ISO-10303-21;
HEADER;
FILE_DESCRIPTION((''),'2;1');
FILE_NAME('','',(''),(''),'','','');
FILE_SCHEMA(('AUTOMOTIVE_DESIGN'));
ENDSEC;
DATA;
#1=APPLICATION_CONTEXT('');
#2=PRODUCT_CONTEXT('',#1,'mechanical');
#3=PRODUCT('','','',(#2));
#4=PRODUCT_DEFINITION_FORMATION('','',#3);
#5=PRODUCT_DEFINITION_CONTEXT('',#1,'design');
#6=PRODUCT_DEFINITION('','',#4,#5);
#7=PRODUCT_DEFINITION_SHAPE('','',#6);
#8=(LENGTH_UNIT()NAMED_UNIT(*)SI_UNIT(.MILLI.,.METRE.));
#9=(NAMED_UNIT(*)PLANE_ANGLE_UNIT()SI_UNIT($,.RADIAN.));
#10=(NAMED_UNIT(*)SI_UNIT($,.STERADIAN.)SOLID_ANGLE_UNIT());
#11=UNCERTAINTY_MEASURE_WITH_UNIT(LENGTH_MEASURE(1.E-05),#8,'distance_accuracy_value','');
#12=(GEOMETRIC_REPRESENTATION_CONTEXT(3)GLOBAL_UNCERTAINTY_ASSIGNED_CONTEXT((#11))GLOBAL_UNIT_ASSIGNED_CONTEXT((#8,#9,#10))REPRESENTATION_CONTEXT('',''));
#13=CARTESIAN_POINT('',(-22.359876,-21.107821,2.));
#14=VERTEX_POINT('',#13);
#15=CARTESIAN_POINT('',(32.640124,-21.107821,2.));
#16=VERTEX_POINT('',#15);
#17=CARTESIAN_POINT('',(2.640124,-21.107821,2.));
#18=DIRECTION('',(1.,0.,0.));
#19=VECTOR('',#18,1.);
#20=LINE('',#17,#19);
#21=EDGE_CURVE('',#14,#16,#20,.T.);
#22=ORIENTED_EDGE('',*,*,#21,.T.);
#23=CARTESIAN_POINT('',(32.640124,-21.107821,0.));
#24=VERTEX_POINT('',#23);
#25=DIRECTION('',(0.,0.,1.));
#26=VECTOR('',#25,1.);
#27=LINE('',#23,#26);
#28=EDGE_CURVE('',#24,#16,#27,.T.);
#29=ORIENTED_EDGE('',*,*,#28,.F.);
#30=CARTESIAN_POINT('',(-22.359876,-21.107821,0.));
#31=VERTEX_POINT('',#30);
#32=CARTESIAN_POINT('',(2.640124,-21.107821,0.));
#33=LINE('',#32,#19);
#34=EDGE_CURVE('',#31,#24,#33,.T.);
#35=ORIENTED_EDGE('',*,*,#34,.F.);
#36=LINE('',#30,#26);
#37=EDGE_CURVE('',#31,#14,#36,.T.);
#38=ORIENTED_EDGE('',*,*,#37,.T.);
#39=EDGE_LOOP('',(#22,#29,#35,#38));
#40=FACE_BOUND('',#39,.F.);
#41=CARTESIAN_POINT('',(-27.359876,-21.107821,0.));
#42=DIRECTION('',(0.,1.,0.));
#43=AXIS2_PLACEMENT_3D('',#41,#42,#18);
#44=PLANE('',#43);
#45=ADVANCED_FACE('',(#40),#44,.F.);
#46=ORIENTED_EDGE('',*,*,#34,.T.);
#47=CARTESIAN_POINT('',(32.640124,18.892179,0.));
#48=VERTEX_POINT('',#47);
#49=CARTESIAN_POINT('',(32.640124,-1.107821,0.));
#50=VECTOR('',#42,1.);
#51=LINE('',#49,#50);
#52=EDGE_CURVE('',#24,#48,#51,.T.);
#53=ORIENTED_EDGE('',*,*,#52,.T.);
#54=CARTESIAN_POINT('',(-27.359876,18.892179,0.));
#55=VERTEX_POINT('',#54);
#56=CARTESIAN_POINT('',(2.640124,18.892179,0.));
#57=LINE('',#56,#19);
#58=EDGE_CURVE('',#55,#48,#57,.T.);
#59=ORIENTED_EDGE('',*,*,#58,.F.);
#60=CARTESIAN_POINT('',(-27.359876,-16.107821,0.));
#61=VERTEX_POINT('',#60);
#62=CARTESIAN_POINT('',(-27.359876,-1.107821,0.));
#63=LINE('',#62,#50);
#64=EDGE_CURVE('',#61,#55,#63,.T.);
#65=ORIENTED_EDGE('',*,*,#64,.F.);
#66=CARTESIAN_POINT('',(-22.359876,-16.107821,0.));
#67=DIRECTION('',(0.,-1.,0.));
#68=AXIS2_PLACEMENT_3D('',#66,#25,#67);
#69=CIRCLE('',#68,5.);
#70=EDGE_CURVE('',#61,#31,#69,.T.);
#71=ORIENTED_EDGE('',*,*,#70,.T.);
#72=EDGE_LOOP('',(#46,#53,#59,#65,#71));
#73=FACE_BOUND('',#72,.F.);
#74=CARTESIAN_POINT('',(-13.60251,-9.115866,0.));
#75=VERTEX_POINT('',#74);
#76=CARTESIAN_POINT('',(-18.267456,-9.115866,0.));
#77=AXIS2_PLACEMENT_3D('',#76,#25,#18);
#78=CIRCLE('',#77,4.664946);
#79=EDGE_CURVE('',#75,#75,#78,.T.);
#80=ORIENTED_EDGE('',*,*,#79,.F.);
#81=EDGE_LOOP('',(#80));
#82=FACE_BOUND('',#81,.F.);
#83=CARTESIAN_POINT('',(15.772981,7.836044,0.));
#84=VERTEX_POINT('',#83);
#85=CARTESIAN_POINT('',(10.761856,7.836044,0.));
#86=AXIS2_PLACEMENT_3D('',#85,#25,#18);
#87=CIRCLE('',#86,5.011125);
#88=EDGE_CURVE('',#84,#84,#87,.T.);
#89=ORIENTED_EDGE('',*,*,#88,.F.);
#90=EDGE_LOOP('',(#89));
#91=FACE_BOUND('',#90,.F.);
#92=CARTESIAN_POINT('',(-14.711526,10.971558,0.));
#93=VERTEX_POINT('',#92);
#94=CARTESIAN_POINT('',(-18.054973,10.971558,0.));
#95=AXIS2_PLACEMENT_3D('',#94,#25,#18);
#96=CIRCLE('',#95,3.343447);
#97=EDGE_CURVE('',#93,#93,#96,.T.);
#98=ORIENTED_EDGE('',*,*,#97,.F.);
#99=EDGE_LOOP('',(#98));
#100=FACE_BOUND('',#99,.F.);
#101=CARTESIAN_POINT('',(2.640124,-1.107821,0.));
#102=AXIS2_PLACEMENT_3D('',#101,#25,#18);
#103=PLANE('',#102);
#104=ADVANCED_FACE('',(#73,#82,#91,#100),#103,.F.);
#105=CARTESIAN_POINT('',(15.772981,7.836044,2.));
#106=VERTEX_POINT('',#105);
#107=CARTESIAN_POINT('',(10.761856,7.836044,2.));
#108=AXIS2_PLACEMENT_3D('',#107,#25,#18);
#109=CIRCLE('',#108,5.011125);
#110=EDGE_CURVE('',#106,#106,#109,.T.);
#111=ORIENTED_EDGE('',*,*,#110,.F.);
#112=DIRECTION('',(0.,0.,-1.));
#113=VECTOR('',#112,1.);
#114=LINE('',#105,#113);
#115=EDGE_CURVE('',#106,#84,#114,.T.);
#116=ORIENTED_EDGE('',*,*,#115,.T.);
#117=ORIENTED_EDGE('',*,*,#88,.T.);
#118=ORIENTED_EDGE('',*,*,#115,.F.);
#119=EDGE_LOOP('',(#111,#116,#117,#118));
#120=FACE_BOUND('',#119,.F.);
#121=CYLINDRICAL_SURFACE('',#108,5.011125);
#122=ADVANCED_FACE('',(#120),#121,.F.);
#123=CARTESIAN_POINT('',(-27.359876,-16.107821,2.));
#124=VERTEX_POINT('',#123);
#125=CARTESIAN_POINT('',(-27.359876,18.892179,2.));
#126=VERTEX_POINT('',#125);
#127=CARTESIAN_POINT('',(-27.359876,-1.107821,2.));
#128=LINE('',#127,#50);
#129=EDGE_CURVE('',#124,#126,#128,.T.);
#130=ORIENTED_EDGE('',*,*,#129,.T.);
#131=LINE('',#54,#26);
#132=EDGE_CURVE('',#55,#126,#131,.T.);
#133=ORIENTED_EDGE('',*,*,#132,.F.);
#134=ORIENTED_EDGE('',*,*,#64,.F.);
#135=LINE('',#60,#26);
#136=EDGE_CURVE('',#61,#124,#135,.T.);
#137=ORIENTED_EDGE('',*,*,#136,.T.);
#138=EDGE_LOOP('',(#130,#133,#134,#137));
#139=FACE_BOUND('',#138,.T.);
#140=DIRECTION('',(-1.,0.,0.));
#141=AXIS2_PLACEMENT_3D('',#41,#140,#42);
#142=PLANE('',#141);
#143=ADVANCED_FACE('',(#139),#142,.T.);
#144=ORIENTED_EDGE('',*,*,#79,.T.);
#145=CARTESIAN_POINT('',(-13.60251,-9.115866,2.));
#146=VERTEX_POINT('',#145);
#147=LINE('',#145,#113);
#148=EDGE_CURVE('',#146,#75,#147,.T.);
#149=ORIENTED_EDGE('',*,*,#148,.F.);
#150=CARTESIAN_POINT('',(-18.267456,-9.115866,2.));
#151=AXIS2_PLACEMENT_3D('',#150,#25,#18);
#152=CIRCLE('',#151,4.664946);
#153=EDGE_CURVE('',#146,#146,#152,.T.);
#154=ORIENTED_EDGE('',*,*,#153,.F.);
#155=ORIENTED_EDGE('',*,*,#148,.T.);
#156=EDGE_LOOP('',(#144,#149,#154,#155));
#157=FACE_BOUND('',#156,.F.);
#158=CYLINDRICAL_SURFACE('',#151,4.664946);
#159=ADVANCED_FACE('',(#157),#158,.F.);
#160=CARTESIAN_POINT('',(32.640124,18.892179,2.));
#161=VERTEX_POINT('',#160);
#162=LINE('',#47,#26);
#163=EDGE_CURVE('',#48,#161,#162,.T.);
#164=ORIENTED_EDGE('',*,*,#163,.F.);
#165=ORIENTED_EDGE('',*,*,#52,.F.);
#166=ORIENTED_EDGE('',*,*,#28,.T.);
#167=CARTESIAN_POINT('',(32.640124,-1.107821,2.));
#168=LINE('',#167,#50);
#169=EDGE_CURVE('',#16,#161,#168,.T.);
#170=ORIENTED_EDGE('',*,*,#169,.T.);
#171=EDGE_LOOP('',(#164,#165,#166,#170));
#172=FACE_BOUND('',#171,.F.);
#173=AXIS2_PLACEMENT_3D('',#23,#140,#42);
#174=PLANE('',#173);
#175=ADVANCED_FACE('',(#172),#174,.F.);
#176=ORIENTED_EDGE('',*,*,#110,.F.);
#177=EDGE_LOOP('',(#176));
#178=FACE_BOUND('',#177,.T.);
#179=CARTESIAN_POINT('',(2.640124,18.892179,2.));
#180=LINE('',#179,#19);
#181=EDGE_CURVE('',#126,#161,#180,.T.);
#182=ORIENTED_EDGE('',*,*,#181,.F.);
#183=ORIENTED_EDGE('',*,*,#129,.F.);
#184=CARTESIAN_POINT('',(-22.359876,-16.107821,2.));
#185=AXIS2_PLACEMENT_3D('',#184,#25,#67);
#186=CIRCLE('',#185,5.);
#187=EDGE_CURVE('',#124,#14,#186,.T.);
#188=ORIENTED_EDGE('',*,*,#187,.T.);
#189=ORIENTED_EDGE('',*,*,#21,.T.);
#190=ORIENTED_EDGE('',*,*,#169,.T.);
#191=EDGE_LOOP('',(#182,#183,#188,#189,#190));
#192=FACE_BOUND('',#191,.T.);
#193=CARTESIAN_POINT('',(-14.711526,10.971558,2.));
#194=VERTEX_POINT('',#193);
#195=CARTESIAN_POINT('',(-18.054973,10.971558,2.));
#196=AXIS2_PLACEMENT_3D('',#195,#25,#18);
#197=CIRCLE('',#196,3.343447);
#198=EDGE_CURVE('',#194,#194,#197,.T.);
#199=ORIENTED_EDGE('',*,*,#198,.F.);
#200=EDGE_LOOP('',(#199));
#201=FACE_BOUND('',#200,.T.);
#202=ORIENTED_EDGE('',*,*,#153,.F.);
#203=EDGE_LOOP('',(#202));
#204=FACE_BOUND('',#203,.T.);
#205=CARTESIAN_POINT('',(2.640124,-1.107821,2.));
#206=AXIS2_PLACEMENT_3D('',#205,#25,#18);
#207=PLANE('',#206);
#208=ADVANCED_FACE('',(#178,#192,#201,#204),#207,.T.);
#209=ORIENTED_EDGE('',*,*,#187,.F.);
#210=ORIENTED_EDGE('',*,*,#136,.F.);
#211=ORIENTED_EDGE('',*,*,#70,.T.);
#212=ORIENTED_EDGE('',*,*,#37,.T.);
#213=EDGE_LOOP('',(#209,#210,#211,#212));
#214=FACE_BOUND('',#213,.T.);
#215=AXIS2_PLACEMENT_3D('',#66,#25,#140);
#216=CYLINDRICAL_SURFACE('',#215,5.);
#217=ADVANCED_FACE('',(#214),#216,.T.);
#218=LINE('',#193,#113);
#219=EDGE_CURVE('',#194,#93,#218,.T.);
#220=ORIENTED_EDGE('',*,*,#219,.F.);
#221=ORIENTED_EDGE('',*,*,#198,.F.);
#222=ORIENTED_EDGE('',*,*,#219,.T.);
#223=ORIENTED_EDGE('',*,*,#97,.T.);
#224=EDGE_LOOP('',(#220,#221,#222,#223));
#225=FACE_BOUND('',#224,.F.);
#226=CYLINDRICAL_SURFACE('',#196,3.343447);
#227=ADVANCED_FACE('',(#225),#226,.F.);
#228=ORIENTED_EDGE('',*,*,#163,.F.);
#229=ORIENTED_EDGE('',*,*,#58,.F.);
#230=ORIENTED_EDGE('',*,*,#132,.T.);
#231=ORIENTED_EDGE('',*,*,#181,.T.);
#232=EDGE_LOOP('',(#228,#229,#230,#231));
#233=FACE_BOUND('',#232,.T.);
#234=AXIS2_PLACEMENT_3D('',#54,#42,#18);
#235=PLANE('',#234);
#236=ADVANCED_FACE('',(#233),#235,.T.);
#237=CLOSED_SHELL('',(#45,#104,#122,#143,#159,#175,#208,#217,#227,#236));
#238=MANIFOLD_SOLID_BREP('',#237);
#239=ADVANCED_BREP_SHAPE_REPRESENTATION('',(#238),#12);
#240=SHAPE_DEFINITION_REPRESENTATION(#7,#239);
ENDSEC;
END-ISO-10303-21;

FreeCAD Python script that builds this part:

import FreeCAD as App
import Part
import Sketcher
from FreeCAD import Vector


def edges_at(feature, points):
    """Names of the edges that pass closest to the given points."""
    edges = feature.Shape.Edges
    near = lambda p: min(range(len(edges)), key=lambda i: edges[i].distToShape(Part.Vertex(*p))[0])
    return sorted({f"Edge{near(p) + 1}" for p in points})

doc = App.newDocument("Part")
body = doc.addObject("PartDesign::Body", "Body")

sketch1 = doc.addObject("Sketcher::SketchObject", "Sketch")
body.addObject(sketch1)
sketch1.AttachmentSupport = (doc.XY_Plane, [""])
sketch1.MapMode = "FlatFace"
sketch1.addGeometry(Part.LineSegment(Vector(-27, 19, 0), Vector(-27, -21, 0)), False)
sketch1.addGeometry(Part.LineSegment(Vector(-27, -21, 0), Vector(33, -21, 0)), False)
sketch1.addGeometry(Part.LineSegment(Vector(33, -21, 0), Vector(33, 19, 0)), False)
sketch1.addGeometry(Part.LineSegment(Vector(33, 19, 0), Vector(-27, 19, 0)), False)
sketch1.addConstraint(Sketcher.Constraint("Coincident", 0, 2, 1, 1))
sketch1.addConstraint(Sketcher.Constraint("Coincident", 1, 2, 2, 1))
sketch1.addConstraint(Sketcher.Constraint("Coincident", 2, 2, 3, 1))
sketch1.addConstraint(Sketcher.Constraint("Coincident", 3, 2, 0, 1))
sketch1.addConstraint(Sketcher.Constraint("Vertical", 0))
sketch1.addConstraint(Sketcher.Constraint("Horizontal", 1))
sketch1.addConstraint(Sketcher.Constraint("Vertical", 2))
sketch1.addConstraint(Sketcher.Constraint("Horizontal", 3))
sketch1.addConstraint(Sketcher.Constraint("DistanceX", 1, 1, 1, 2, 60.0))
sketch1.addConstraint(Sketcher.Constraint("DistanceY", 0, 2, 0, 1, 40.0))
sketch1.addConstraint(Sketcher.Constraint("DistanceY", 0, 2, -1, 1, 21.107821))
sketch1.addConstraint(Sketcher.Constraint("DistanceX", 0, 2, -1, 1, 27.359876))
pad1 = doc.addObject("PartDesign::Pad", "Pad")
body.addObject(pad1)
pad1.Profile = sketch1
pad1.Length = 2

sketch2 = doc.addObject("Sketcher::SketchObject", "Sketch001")
body.addObject(sketch2)
sketch2.AttachmentSupport = (doc.XY_Plane, [""])
sketch2.MapMode = "FlatFace"
sketch2.AttachmentOffset = App.Placement(Vector(0, 0, 2), App.Rotation())
sketch2.addGeometry(Part.Circle(Vector(-18.1, 11, 0), Vector(0, 0, 1), 3.3), False)
sketch2.addGeometry(Part.Circle(Vector(-18.3, -9.1, 0), Vector(0, 0, 1), 4.7), False)
sketch2.addGeometry(Part.Circle(Vector(10.8, 7.8, 0), Vector(0, 0, 1), 5), False)
sketch2.addConstraint(Sketcher.Constraint("Diameter", 1, 9.329892))
sketch2.addConstraint(Sketcher.Constraint("Diameter", 2, 10.02225))
sketch2.addConstraint(Sketcher.Constraint("Diameter", 0, 6.686894))
sketch2.addConstraint(Sketcher.Constraint("DistanceX", 0, 3, 2, 3, 28.816829))
sketch2.addConstraint(Sketcher.Constraint("DistanceX", 1, 3, 2, 3, 29.029312))
sketch2.addConstraint(Sketcher.Constraint("DistanceY", 1, 3, 2, 3, 16.95191))
sketch2.addConstraint(Sketcher.Constraint("DistanceX", 0, 3, -1, 1, 18.054973))
sketch2.addConstraint(Sketcher.Constraint("DistanceY", -1, 1, 0, 3, 10.971558))
sketch2.addConstraint(Sketcher.Constraint("DistanceY", 1, 3, -1, 1, 9.115866))
pocket1 = doc.addObject("PartDesign::Pocket", "Pocket")
body.addObject(pocket1)
pocket1.Profile = sketch2
pocket1.Length = 2
doc.recompute()

fillet = doc.addObject("PartDesign::Fillet", "Fillet")
body.addObject(fillet)
fillet.Base = (pocket1, edges_at(pocket1, [(-27.36, -21.108, 1)]))
fillet.Radius = 5

doc.recompute()
